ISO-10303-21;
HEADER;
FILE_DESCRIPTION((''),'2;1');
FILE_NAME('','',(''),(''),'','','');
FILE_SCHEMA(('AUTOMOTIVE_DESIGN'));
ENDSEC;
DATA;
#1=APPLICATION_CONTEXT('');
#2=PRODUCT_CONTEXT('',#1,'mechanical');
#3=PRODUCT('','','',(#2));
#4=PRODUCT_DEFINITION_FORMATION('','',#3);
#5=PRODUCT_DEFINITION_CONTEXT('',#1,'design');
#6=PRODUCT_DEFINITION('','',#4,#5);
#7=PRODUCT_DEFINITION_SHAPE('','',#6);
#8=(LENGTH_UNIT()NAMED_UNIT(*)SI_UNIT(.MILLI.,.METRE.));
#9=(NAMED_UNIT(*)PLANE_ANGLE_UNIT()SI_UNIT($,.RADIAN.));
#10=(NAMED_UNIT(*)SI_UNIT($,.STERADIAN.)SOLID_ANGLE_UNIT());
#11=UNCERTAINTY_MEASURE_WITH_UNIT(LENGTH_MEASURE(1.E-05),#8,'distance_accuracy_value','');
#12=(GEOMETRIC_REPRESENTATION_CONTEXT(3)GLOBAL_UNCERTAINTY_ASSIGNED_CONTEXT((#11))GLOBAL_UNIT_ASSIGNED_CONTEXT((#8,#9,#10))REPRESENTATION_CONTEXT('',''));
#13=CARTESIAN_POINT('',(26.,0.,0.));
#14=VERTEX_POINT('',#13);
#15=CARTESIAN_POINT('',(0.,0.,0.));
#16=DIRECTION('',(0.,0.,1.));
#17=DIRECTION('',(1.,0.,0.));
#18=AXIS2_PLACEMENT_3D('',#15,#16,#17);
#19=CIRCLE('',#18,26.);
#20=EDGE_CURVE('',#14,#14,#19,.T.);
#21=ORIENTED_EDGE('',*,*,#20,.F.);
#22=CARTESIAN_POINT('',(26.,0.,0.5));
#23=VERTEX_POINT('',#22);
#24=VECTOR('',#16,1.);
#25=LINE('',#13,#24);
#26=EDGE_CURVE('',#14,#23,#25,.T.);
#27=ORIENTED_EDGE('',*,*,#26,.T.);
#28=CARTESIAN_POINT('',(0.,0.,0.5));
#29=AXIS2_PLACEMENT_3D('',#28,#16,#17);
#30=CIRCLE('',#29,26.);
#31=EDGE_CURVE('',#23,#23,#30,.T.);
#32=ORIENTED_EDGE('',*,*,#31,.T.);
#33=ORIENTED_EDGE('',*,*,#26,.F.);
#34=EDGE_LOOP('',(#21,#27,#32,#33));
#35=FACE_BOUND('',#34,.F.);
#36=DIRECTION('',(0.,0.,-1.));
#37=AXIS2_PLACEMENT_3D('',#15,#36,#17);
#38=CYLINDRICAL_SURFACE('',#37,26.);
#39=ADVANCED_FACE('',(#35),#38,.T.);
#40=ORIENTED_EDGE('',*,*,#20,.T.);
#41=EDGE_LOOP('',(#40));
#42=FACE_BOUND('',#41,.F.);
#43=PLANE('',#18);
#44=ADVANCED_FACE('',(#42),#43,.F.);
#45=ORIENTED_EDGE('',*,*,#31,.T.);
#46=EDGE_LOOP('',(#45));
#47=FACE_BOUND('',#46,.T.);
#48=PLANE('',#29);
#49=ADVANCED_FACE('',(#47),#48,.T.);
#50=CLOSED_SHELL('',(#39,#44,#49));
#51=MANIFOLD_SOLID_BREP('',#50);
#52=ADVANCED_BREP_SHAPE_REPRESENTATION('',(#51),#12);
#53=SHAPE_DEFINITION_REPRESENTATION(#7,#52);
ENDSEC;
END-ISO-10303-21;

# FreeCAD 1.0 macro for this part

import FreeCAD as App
import Part
import Sketcher

V = App.Vector

doc = App.newDocument("Part")
body = doc.addObject("PartDesign::Body", "Body")

# Sketch on XY plane
sketch1 = doc.addObject("Sketcher::SketchObject", "Sketch")
body.addObject(sketch1)
sketch1.AttachmentSupport = (doc.XY_Plane, [""])
sketch1.MapMode = "FlatFace"
sketch1.addGeometry(Part.Circle(V(0, 0, 0), V(0, 0, 1), 26), False)
sketch1.addConstraint([
    Sketcher.Constraint("Coincident", 0, 3, -1, 1),
    Sketcher.Constraint("Diameter", 0, 52.0),
])
pad1 = doc.addObject("PartDesign::Pad", "Pad")
body.addObject(pad1)
pad1.Profile = sketch1
pad1.Length = 0.5

doc.recompute()
